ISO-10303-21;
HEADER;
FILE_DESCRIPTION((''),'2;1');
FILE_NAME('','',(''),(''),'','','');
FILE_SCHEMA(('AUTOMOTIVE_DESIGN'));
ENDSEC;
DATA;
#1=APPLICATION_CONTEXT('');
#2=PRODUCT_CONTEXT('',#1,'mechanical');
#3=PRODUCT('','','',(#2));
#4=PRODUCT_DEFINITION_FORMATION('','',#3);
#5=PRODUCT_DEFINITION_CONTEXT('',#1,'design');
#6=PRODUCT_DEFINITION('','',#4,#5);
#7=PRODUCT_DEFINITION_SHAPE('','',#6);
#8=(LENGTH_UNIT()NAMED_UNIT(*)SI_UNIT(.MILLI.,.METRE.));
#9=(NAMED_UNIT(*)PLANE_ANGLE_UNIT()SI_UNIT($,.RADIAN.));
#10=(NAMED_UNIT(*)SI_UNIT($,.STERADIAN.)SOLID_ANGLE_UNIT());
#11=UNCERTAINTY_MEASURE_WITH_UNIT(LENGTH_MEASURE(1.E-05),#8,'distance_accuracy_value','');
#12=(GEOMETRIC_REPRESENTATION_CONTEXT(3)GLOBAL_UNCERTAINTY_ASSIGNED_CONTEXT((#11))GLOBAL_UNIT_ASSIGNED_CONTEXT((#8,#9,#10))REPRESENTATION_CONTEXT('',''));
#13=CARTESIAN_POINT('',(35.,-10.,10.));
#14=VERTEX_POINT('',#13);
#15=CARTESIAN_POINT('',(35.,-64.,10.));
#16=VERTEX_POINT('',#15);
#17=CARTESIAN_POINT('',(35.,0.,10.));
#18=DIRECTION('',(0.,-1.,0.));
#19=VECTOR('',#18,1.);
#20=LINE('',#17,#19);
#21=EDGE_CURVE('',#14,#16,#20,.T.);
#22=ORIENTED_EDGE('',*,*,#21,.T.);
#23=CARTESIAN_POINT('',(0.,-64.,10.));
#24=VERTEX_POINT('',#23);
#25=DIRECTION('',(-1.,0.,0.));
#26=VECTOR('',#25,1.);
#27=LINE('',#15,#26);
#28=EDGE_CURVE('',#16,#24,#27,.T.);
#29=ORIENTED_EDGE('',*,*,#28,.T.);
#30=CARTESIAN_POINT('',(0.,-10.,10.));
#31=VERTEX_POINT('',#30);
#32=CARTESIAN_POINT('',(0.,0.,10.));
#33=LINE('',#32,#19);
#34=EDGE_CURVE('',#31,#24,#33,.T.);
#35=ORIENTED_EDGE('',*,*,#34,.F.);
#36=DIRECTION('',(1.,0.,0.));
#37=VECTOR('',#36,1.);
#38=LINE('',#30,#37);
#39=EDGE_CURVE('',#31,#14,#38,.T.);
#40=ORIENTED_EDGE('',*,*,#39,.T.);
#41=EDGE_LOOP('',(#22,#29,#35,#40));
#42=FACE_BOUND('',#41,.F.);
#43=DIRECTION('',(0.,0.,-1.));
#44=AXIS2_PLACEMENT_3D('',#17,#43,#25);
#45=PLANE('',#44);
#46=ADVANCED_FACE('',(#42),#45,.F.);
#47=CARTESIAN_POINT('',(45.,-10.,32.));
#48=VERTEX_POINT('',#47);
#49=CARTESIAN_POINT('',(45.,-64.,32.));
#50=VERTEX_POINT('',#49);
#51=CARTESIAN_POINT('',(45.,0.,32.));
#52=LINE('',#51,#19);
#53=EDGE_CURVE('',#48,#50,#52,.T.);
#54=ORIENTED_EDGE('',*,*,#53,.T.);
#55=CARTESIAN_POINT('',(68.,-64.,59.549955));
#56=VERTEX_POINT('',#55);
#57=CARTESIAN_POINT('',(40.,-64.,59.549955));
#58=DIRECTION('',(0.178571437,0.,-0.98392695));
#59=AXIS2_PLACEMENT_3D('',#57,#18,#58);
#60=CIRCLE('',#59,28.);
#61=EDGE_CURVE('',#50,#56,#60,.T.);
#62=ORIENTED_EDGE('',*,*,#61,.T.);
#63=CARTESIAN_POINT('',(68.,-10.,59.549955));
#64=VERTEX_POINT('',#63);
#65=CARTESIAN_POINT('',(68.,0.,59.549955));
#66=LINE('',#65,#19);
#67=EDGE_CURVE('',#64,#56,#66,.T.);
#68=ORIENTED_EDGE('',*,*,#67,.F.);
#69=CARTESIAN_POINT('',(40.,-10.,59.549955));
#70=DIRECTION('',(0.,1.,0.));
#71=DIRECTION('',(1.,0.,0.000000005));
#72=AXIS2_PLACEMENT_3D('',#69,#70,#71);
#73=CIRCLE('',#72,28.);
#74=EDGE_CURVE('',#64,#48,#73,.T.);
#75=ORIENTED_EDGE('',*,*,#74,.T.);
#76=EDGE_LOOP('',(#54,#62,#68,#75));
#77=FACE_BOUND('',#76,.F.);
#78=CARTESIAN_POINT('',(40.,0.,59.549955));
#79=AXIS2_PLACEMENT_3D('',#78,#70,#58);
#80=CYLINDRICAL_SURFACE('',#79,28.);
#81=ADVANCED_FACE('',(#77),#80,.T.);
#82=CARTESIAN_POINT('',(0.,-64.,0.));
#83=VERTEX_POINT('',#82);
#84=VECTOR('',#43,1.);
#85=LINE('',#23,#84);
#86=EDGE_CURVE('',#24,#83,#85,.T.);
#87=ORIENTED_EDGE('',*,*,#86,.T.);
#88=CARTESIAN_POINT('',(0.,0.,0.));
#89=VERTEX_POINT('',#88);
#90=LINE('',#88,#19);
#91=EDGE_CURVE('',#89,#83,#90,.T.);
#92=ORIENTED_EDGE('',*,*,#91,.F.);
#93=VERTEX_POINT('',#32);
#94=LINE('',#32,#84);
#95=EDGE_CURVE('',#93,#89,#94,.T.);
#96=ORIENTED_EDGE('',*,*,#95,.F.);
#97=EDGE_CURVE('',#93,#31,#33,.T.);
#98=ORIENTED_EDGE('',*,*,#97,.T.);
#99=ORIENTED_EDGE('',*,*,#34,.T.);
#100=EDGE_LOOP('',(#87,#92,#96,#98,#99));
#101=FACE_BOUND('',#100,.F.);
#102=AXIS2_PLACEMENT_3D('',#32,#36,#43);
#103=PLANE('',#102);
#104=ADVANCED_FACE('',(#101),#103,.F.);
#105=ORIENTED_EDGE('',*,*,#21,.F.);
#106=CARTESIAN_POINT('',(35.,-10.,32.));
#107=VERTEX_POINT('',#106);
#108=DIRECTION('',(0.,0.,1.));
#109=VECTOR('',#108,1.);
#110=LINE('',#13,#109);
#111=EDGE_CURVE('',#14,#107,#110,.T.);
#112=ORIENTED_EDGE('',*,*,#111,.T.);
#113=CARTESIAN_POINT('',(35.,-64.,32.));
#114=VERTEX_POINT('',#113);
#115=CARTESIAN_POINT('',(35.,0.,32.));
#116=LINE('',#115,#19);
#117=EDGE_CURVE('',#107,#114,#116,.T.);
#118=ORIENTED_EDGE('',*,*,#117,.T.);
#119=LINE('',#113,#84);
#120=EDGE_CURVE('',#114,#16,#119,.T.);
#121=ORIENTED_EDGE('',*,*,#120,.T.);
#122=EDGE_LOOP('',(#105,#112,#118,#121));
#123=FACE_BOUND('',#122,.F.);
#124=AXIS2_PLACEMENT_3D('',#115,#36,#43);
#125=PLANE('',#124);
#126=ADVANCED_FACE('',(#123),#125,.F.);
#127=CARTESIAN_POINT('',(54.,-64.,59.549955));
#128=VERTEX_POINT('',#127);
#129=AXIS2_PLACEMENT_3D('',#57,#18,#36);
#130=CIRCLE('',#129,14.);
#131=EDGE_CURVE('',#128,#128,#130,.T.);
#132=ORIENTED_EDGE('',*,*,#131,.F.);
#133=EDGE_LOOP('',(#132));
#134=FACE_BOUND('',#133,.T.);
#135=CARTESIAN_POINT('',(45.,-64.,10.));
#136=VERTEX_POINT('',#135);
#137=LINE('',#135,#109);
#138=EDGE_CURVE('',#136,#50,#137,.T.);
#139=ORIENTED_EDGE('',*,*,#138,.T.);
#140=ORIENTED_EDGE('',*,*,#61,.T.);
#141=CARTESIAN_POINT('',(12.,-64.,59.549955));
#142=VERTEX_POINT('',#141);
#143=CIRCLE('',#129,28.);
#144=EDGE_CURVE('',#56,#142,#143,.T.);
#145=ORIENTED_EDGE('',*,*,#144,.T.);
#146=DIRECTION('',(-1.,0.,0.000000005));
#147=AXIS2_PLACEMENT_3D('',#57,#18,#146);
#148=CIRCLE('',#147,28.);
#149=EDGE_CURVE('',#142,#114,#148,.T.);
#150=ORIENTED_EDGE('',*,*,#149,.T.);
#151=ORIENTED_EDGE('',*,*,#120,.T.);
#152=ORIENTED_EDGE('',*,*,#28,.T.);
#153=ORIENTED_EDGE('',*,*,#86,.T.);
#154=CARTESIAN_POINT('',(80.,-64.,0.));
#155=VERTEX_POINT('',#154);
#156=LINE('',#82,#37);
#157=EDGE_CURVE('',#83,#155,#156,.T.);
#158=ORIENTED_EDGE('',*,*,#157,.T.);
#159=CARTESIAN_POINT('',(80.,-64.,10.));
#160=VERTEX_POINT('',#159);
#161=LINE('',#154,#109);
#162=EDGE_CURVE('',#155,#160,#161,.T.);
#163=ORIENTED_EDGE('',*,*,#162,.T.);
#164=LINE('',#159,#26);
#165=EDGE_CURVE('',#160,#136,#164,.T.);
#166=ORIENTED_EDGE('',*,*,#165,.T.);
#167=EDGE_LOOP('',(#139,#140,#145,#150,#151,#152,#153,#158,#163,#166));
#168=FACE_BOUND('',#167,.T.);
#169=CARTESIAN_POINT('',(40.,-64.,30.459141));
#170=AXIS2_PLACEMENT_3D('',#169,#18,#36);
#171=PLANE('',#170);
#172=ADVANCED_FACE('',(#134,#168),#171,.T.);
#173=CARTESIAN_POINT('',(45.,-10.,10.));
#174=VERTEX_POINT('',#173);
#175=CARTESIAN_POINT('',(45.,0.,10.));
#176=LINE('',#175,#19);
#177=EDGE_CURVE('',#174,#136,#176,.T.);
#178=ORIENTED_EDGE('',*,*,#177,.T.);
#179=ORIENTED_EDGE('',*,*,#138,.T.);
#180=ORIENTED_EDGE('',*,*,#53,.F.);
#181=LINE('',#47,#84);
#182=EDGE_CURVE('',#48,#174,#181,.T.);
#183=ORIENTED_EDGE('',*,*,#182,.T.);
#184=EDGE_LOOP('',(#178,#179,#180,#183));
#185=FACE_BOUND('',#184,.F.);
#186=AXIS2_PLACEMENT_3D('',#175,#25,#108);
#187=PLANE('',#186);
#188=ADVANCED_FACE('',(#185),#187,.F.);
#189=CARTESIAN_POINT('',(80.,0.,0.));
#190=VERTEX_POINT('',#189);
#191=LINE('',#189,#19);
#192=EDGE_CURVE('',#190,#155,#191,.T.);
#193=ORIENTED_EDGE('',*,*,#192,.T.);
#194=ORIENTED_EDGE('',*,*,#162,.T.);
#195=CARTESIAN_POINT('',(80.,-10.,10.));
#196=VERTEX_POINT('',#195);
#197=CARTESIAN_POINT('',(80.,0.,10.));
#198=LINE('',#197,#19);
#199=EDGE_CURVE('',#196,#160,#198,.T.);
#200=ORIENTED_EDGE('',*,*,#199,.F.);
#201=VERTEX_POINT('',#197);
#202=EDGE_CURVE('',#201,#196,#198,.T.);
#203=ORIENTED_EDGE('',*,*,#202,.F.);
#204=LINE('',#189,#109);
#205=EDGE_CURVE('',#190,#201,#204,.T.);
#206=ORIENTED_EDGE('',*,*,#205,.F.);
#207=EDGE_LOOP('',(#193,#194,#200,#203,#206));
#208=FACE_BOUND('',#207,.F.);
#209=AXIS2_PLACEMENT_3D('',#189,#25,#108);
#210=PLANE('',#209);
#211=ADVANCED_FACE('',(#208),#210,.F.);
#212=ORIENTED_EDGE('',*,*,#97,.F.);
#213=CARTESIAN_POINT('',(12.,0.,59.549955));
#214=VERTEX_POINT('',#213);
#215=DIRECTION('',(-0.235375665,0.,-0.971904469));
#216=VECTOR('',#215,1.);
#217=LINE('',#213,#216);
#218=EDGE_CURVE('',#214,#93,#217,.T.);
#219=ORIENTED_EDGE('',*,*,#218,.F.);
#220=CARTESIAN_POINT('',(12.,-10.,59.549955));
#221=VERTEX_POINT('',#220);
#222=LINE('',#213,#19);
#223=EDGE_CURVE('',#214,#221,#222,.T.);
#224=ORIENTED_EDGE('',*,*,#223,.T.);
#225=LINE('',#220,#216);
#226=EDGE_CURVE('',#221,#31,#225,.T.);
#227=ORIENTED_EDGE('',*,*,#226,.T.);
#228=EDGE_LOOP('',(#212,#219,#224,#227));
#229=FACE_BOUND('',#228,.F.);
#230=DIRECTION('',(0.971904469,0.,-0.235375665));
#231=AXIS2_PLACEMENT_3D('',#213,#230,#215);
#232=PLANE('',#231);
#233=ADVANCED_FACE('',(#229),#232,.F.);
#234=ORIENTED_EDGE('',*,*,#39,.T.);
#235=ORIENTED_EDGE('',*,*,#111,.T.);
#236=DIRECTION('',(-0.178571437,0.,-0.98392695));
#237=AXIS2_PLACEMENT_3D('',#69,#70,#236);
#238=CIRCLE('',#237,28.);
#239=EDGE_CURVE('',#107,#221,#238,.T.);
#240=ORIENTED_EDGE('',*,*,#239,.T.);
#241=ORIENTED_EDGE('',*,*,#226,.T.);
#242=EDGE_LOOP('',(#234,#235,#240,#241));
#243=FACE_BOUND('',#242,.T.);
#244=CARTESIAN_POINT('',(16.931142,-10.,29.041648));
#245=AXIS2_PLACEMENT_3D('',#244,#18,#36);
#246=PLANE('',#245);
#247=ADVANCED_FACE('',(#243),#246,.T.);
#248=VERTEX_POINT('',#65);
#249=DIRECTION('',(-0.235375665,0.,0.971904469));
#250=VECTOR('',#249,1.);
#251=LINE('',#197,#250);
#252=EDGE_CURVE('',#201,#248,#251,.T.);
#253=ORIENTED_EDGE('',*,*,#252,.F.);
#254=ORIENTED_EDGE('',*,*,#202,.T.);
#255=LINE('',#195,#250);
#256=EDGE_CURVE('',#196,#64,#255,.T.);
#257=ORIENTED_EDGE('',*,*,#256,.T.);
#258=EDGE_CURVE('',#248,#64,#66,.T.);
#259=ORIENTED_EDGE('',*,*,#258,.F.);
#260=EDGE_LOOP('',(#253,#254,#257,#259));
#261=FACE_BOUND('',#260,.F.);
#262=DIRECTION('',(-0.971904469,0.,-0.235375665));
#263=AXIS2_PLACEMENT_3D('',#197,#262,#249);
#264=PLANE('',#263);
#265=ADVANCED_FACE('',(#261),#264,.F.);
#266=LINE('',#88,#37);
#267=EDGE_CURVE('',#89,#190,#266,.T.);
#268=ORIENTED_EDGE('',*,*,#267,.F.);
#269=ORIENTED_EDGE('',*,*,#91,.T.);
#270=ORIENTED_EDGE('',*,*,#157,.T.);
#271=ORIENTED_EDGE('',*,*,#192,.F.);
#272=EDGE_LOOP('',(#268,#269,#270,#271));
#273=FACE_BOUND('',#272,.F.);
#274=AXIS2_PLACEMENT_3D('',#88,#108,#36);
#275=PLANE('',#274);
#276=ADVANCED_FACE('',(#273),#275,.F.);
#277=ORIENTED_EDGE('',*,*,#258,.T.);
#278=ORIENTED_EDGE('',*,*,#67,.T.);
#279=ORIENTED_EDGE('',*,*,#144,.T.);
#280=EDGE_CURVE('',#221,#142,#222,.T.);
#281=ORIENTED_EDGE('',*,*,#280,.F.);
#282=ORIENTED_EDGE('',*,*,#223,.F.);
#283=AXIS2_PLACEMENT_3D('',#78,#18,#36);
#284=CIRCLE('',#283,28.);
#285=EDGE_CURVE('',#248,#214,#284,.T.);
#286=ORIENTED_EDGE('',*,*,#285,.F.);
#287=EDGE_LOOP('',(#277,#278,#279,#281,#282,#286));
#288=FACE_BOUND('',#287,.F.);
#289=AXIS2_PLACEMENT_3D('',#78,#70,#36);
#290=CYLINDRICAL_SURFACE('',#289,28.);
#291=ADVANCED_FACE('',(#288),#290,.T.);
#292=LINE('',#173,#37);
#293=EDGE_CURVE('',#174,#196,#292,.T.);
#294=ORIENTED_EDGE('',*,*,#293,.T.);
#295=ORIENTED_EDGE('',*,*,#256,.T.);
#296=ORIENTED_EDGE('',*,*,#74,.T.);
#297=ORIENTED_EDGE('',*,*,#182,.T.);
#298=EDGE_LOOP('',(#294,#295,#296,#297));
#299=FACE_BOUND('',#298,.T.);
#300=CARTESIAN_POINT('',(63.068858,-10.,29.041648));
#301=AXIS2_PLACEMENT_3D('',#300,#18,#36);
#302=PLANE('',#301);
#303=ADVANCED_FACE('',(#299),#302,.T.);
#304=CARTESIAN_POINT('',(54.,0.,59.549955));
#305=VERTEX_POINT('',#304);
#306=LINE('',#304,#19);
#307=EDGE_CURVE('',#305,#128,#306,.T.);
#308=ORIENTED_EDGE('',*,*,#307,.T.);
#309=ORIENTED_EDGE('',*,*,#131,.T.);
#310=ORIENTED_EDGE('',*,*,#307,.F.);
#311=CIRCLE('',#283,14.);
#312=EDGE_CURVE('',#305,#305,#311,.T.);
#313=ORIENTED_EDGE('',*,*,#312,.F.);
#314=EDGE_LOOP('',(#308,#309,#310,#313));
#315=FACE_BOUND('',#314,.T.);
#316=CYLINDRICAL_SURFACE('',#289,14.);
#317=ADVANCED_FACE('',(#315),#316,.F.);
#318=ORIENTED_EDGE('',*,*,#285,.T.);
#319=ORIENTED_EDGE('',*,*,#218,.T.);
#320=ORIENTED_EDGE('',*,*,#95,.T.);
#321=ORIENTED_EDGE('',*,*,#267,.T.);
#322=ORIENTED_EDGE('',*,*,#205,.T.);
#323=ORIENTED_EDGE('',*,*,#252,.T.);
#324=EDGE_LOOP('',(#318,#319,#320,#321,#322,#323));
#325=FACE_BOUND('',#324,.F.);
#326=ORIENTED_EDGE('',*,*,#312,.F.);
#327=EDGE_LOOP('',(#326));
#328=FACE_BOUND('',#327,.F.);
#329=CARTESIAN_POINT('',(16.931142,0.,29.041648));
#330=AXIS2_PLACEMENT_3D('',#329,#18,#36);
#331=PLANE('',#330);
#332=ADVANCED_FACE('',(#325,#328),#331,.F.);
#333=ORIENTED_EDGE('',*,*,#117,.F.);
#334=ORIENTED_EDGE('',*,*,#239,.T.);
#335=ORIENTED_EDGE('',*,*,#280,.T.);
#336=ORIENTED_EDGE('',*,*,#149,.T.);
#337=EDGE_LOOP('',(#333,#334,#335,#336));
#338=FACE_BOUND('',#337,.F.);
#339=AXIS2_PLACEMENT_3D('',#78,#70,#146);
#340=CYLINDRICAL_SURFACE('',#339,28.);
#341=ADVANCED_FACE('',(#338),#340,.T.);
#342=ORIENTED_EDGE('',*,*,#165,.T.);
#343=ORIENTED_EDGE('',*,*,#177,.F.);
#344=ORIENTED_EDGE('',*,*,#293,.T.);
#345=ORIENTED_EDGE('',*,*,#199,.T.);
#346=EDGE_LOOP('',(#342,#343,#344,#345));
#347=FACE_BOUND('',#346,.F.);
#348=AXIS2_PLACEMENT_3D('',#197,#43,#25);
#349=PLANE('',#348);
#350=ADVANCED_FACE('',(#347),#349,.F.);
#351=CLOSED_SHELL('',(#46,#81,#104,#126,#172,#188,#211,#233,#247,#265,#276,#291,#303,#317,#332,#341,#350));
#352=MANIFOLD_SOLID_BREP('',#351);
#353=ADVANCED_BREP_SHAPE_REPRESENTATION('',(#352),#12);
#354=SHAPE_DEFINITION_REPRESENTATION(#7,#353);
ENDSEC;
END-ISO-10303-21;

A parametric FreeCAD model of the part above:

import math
import FreeCAD as App
import Part
import Sketcher

doc = App.newDocument("Part")
body = doc.addObject("PartDesign::Body", "Body")

sketch1 = body.newObject("Sketcher::SketchObject", "Sketch")
sketch1.AttachmentSupport = (doc.getObject("XZ_Plane"), [""])
sketch1.MapMode = "FlatFace"
sketch1.addGeometry(Part.LineSegment(App.Vector(0, 10, 0), App.Vector(0, 0, 0)), False)
sketch1.addGeometry(Part.LineSegment(App.Vector(0, 0, 0), App.Vector(80, 0, 0)), False)
sketch1.addGeometry(Part.LineSegment(App.Vector(80, 0, 0), App.Vector(80, 10, 0)), False)
sketch1.addGeometry(Part.LineSegment(App.Vector(80, 10, 0), App.Vector(45, 10, 0)), False)
sketch1.addGeometry(Part.LineSegment(App.Vector(45, 10, 0), App.Vector(45, 32, 0)), False)
sketch1.addGeometry(Part.ArcOfCircle(Part.Circle(App.Vector(40, 59.549955, 0), App.Vector(0, 0, 1), 28), math.radians(-79.713439), math.radians(0)), False)
sketch1.addGeometry(Part.ArcOfCircle(Part.Circle(App.Vector(40, 59.549955, 0), App.Vector(0, 0, 1), 28), math.radians(0), math.radians(180)), False)
sketch1.addGeometry(Part.ArcOfCircle(Part.Circle(App.Vector(40, 59.549955, 0), App.Vector(0, 0, 1), 28), math.radians(180), math.radians(259.713439)), False)
sketch1.addGeometry(Part.LineSegment(App.Vector(35, 32, 0), App.Vector(35, 10, 0)), False)
sketch1.addGeometry(Part.LineSegment(App.Vector(35, 10, 0), App.Vector(0, 10, 0)), False)
sketch1.addGeometry(Part.Circle(App.Vector(40, 59.549955, 0), App.Vector(0, 0, 1), 14), False)
sketch1.addConstraint(Sketcher.Constraint("Coincident", 0, 2, 1, 1))
sketch1.addConstraint(Sketcher.Constraint("Coincident", 1, 2, 2, 1))
sketch1.addConstraint(Sketcher.Constraint("Coincident", 2, 2, 3, 1))
sketch1.addConstraint(Sketcher.Constraint("Coincident", 3, 2, 4, 1))
sketch1.addConstraint(Sketcher.Constraint("Coincident", 4, 2, 5, 1))
sketch1.addConstraint(Sketcher.Constraint("Tangent", 5, 2, 6, 1))
sketch1.addConstraint(Sketcher.Constraint("Tangent", 6, 2, 7, 1))
sketch1.addConstraint(Sketcher.Constraint("Coincident", 7, 2, 8, 1))
sketch1.addConstraint(Sketcher.Constraint("Coincident", 8, 2, 9, 1))
sketch1.addConstraint(Sketcher.Constraint("Coincident", 9, 2, 0, 1))
sketch1.addConstraint(Sketcher.Constraint("Vertical", 0))
sketch1.addConstraint(Sketcher.Constraint("Horizontal", 1))
sketch1.addConstraint(Sketcher.Constraint("Vertical", 2))
sketch1.addConstraint(Sketcher.Constraint("Horizontal", 3))
sketch1.addConstraint(Sketcher.Constraint("Vertical", 4))
sketch1.addConstraint(Sketcher.Constraint("Vertical", 8))
sketch1.addConstraint(Sketcher.Constraint("Horizontal", 9))
sketch1.addConstraint(Sketcher.Constraint("Coincident", 0, 2, -1, 1))
sketch1.addConstraint(Sketcher.Constraint("Coincident", 10, 3, 5, 3))
sketch1.addConstraint(Sketcher.Constraint("Equal", 5, 6))
sketch1.addConstraint(Sketcher.Constraint("Equal", 6, 7))
sketch1.addConstraint(Sketcher.Constraint("Horizontal", 10, 3, 5, 2))
sketch1.addConstraint(Sketcher.Constraint("Horizontal", 5, 2, 6, 2))
sketch1.addConstraint(Sketcher.Constraint("Horizontal", 4, 2, 7, 2))
sketch1.addConstraint(Sketcher.Constraint("Horizontal", 3, 2, 8, 2))
sketch1.addConstraint(Sketcher.Constraint("Equal", 3, 9))
sketch1.addConstraint(Sketcher.Constraint("Diameter", 10, 28.0))
sketch1.addConstraint(Sketcher.Constraint("Radius", 5, 28.0))
sketch1.addConstraint(Sketcher.Constraint("DistanceX", 1, 1, 1, 2, 80.0))
sketch1.addConstraint(Sketcher.Constraint("DistanceX", 3, 2, 3, 1, 35.0))
sketch1.addConstraint(Sketcher.Constraint("DistanceY", 0, 2, 0, 1, 10.0))
sketch1.addConstraint(Sketcher.Constraint("DistanceY", 4, 1, 4, 2, 22.0))
pad1 = body.newObject("PartDesign::Pad", "Pad")
pad1.Profile = sketch1
pad1.Length = 64

sketch2 = body.newObject("Sketcher::SketchObject", "Sketch001")
sketch2.AttachmentSupport = (doc.getObject("XZ_Plane"), [""])
sketch2.MapMode = "FlatFace"
sketch2.addGeometry(Part.LineSegment(App.Vector(12, 59.549955, 0), App.Vector(0, 10, 0)), False)
sketch2.addGeometry(Part.LineSegment(App.Vector(0, 10, 0), App.Vector(35, 10, 0)), False)
sketch2.addGeometry(Part.LineSegment(App.Vector(35, 10, 0), App.Vector(35, 32, 0)), False)
sketch2.addGeometry(Part.ArcOfCircle(Part.Circle(App.Vector(40, 59.549955, 0), App.Vector(0, 0, 1), 28), math.radians(180), math.radians(259.713439)), False)
sketch2.addGeometry(Part.LineSegment(App.Vector(45, 10, 0), App.Vector(80, 10, 0)), False)
sketch2.addGeometry(Part.LineSegment(App.Vector(80, 10, 0), App.Vector(68, 59.549955, 0)), False)
sketch2.addGeometry(Part.ArcOfCircle(Part.Circle(App.Vector(40, 59.549955, 0), App.Vector(0, 0, 1), 28), math.radians(-79.713439), math.radians(0)), False)
sketch2.addGeometry(Part.LineSegment(App.Vector(45, 32, 0), App.Vector(45, 10, 0)), False)
sketch2.addConstraint(Sketcher.Constraint("Coincident", 0, 2, 1, 1))
sketch2.addConstraint(Sketcher.Constraint("Coincident", 1, 2, 2, 1))
sketch2.addConstraint(Sketcher.Constraint("Coincident", 2, 2, 3, 2))
sketch2.addConstraint(Sketcher.Constraint("Coincident", 3, 1, 0, 1))
sketch2.addConstraint(Sketcher.Constraint("Coincident", 4, 2, 5, 1))
sketch2.addConstraint(Sketcher.Constraint("Coincident", 5, 2, 6, 2))
sketch2.addConstraint(Sketcher.Constraint("Coincident", 6, 1, 7, 1))
sketch2.addConstraint(Sketcher.Constraint("Coincident", 7, 2, 4, 1))
sketch2.addConstraint(Sketcher.Constraint("Horizontal", 1))
sketch2.addConstraint(Sketcher.Constraint("Vertical", 2))
sketch2.addConstraint(Sketcher.Constraint("Horizontal", 4))
sketch2.addConstraint(Sketcher.Constraint("Vertical", 7))
sketch2.addConstraint(Sketcher.Constraint("Coincident", 6, 3, 3, 3))
sketch2.addConstraint(Sketcher.Constraint("Equal", 3, 6))
sketch2.addConstraint(Sketcher.Constraint("PointOnObject", 0, 2, -2))
sketch2.addConstraint(Sketcher.Constraint("Horizontal", 6, 3, 3, 1))
sketch2.addConstraint(Sketcher.Constraint("Horizontal", 1, 2, 4, 2))
sketch2.addConstraint(Sketcher.Constraint("Horizontal", 3, 1, 5, 2))
sketch2.addConstraint(Sketcher.Constraint("Horizontal", 2, 2, 6, 1))
sketch2.addConstraint(Sketcher.Constraint("Equal", 1, 4))
sketch2.addConstraint(Sketcher.Constraint("Radius", 3, 28.0))
sketch2.addConstraint(Sketcher.Constraint("DistanceX", 1, 1, 1, 2, 35.0))
sketch2.addConstraint(Sketcher.Constraint("DistanceY", 2, 1, 2, 2, 22.0))
sketch2.addConstraint(Sketcher.Constraint("DistanceX", -1, 1, 3, 3, 40.0))
sketch2.addConstraint(Sketcher.Constraint("DistanceY", -1, 1, 0, 2, 10.0))
pad2 = body.newObject("PartDesign::Pad", "Pad001")
pad2.Profile = sketch2
pad2.Length = 10

doc.recompute()
